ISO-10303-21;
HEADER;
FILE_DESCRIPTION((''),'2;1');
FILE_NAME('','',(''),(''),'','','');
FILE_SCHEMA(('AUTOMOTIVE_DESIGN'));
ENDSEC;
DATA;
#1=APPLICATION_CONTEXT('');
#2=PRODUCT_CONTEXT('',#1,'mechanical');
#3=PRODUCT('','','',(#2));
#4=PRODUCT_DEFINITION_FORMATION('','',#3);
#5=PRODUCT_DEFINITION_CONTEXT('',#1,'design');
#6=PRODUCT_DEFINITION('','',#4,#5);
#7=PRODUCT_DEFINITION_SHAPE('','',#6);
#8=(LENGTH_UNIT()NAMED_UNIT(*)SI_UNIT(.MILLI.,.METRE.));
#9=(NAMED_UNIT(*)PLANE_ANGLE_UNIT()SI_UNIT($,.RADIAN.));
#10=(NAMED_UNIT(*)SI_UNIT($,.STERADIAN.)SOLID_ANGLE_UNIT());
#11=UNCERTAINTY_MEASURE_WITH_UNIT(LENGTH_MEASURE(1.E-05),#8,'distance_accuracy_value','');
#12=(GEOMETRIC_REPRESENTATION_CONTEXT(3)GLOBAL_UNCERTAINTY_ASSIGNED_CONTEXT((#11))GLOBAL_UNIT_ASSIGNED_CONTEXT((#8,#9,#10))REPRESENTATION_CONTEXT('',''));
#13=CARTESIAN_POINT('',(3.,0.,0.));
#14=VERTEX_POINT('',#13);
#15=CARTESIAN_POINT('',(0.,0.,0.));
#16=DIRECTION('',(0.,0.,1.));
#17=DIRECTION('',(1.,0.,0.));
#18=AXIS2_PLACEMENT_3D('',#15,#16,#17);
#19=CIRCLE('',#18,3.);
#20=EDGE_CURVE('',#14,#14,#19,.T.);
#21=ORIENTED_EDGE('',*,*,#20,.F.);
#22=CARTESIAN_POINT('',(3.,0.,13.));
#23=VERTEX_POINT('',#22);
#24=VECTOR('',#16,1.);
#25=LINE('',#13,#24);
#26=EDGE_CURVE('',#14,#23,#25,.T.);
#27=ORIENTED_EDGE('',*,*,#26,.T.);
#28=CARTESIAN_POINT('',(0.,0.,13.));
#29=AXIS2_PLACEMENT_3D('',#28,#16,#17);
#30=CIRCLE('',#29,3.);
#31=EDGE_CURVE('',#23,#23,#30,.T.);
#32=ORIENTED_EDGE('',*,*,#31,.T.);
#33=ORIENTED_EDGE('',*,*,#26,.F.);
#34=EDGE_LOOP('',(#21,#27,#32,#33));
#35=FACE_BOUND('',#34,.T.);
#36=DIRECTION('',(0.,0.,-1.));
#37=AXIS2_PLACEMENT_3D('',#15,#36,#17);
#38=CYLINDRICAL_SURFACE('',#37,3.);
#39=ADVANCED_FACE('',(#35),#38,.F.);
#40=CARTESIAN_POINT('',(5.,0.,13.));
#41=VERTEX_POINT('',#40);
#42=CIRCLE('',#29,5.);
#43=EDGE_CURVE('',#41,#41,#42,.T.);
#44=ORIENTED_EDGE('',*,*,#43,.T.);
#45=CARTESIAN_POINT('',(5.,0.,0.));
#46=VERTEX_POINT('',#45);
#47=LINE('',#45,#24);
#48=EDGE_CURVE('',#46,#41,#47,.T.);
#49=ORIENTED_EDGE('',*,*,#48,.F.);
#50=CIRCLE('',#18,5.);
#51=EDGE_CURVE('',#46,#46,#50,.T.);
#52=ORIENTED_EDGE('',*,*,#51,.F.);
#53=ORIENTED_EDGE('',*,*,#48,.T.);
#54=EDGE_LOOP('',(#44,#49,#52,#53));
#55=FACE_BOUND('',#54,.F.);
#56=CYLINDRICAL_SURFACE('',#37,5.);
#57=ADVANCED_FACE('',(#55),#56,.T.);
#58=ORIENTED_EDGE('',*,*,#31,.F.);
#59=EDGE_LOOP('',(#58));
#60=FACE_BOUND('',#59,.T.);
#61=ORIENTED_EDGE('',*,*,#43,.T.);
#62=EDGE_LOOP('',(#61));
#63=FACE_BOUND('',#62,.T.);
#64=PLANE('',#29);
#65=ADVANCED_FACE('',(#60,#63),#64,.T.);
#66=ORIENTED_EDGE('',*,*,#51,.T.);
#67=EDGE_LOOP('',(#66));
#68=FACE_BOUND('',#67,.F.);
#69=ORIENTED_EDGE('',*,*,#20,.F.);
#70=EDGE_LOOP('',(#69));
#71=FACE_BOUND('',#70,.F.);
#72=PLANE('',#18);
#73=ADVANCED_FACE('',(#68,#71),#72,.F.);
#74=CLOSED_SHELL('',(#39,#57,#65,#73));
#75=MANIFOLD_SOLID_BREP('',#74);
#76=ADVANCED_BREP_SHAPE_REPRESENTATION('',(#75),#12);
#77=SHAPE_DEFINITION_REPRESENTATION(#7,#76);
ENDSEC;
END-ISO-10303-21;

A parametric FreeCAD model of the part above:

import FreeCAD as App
import Part
import Sketcher
from FreeCAD import Vector
Q = App.Units.Quantity

doc = App.newDocument("Part")
params = doc.addObject("Spreadsheet::Sheet", "Params")
for row, (alias, value) in enumerate([
    ("sketch1_diameter", "10 mm"),
    ("sketch1_diameter2", "6 mm"),
    ("pad1_length", "13 mm"),
], start=1):
    params.set(f"A{row}", alias)
    params.set(f"B{row}", "=" + value)
    params.setAlias(f"B{row}", alias)

body = doc.addObject("PartDesign::Body", "Body")

sketch1 = doc.addObject("Sketcher::SketchObject", "Sketch")
body.addObject(sketch1)
sketch1.AttachmentSupport = (doc.XY_Plane, [""])
sketch1.MapMode = "FlatFace"
sketch1.addGeometry(Part.Circle(Vector(0, 0, 0), Vector(0, 0, 1), 5), False)
sketch1.addGeometry(Part.Circle(Vector(0, 0, 0), Vector(0, 0, 1), 3), False)
sketch1.addConstraint(Sketcher.Constraint("Coincident", 0, 3, -1, 1))
sketch1.addConstraint(Sketcher.Constraint("Coincident", 1, 3, -1, 1))
sketch1.addConstraint(Sketcher.Constraint("Diameter", 0, Q("10 mm")))
sketch1.addConstraint(Sketcher.Constraint("Diameter", 1, Q("6 mm")))
sketch1.setExpression("Constraints[2]", "Params.sketch1_diameter")
sketch1.setExpression("Constraints[3]", "Params.sketch1_diameter2")
pad1 = doc.addObject("PartDesign::Pad", "Pad")
body.addObject(pad1)
pad1.Profile = sketch1
pad1.setExpression("Length", "Params.pad1_length")

doc.recompute()
